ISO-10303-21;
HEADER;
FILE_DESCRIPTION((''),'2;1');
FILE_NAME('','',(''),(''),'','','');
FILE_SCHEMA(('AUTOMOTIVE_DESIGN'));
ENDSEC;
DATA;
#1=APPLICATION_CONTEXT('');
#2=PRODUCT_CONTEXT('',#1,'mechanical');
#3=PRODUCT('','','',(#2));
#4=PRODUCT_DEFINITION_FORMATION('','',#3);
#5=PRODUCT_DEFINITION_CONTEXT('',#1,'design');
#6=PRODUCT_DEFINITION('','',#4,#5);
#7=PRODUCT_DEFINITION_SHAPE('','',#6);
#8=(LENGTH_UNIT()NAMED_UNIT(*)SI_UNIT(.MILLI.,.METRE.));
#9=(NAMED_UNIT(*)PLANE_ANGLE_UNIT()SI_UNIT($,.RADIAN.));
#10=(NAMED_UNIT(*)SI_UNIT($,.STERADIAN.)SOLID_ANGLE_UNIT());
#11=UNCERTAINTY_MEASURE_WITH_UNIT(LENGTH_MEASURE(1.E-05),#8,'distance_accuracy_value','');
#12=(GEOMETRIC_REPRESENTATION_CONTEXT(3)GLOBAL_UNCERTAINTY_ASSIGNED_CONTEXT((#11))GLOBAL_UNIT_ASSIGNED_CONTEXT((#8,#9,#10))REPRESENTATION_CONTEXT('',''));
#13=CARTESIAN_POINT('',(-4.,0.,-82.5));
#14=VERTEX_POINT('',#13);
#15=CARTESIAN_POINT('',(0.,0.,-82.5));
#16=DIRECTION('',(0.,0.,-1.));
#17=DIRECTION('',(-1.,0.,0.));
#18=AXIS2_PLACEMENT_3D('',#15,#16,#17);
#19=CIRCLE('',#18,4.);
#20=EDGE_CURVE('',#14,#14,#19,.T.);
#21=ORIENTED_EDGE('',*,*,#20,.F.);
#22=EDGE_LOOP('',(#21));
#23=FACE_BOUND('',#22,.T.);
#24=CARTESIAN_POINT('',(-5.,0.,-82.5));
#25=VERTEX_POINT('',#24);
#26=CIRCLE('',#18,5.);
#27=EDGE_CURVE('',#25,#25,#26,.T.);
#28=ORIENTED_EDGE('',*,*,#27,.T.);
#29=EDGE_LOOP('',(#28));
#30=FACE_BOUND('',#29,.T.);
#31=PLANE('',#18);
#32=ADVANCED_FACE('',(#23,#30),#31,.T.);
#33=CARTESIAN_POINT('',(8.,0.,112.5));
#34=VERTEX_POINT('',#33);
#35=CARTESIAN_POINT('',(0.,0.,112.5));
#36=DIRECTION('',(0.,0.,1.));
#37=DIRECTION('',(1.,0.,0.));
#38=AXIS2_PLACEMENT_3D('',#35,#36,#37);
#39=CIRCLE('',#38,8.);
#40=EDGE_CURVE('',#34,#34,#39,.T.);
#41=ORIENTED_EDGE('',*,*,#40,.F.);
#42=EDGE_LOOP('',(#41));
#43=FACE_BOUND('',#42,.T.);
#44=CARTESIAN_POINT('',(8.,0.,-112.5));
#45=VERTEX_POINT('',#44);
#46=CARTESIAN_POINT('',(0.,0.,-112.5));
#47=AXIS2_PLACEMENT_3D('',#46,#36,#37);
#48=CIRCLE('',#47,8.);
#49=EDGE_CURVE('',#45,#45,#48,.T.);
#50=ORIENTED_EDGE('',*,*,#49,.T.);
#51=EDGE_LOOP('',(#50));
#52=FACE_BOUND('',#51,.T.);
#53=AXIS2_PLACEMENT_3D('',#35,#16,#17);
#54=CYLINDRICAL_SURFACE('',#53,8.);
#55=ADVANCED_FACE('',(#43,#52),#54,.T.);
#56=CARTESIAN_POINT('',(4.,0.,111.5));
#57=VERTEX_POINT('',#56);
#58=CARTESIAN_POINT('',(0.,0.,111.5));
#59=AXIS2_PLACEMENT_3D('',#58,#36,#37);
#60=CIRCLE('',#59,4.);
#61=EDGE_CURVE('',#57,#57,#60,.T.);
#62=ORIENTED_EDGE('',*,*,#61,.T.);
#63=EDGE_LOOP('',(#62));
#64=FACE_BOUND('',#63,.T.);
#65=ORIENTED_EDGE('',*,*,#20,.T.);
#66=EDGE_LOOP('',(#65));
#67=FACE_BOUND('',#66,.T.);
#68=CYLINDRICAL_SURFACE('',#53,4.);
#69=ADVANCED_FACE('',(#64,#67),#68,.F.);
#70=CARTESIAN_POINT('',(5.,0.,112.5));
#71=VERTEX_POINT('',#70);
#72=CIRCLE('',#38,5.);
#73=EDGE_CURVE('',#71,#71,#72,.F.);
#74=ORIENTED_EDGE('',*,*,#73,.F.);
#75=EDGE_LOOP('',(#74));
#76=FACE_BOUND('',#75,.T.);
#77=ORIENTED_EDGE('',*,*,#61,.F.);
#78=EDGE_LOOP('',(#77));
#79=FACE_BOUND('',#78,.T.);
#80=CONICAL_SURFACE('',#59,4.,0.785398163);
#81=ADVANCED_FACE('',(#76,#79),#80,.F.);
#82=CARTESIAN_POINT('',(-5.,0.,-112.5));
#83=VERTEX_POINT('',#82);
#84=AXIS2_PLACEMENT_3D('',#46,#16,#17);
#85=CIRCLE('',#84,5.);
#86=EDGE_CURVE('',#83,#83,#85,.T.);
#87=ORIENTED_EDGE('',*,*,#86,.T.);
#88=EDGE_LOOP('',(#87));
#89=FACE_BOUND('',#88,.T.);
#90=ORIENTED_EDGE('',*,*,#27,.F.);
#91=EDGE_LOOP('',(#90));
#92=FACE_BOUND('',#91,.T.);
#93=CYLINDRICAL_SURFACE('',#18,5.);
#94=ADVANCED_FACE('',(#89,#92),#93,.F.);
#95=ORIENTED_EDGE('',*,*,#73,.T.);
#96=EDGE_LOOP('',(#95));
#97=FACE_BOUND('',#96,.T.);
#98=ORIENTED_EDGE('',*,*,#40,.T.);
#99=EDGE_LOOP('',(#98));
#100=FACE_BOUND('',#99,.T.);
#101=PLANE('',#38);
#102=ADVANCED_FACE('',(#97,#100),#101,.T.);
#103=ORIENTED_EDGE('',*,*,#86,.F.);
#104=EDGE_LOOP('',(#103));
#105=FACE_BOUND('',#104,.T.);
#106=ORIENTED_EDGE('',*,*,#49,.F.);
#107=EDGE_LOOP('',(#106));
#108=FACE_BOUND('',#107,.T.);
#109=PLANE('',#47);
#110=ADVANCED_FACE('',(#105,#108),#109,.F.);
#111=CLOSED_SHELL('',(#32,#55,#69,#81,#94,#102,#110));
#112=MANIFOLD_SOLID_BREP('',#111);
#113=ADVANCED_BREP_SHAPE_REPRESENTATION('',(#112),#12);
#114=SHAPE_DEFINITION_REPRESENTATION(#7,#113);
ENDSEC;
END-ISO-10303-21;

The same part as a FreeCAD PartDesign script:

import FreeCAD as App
import Part
import Sketcher
from FreeCAD import Vector
Q = App.Units.Quantity


def edges_at(feature, points):
    """Names of the edges that pass closest to the given points."""
    edges = feature.Shape.Edges
    near = lambda p: min(range(len(edges)), key=lambda i: edges[i].distToShape(Part.Vertex(*p))[0])
    return sorted({f"Edge{near(p) + 1}" for p in points})

doc = App.newDocument("Part")
params = doc.addObject("Spreadsheet::Sheet", "Params")
for row, (alias, value) in enumerate([
    ("sketch1_diameter", "16 mm"),
    ("sketch1_diameter2", "8 mm"),
    ("pad1_length", "225 mm"),
    ("sketch2_diameter", "10 mm"),
    ("pocket1_length", "30 mm"),
    ("chamfer_size", "1 mm"),
], start=1):
    params.set(f"A{row}", alias)
    params.set(f"B{row}", "=" + value)
    params.setAlias(f"B{row}", alias)

body = doc.addObject("PartDesign::Body", "Body")

# Sketch on XY plane
sketch1 = body.newObject("Sketcher::SketchObject", "Sketch")
sketch1.AttachmentSupport = (doc.getObject("XY_Plane"), [""])
sketch1.MapMode = "FlatFace"
sketch1.addGeometry([
    Part.Circle(Vector(0, 0, 0), Vector(0, 0, 1), 8),
    Part.Circle(Vector(0, 0, 0), Vector(0, 0, 1), 4),
], False)
sketch1.addConstraint([
    Sketcher.Constraint("Coincident", 0, 3, -1, 1),
    Sketcher.Constraint("Coincident", 1, 3, -1, 1),
    Sketcher.Constraint("Diameter", 0, Q("16 mm")),
    Sketcher.Constraint("Diameter", 1, Q("8 mm")),
])
sketch1.setExpression("Constraints[2]", "Params.sketch1_diameter")
sketch1.setExpression("Constraints[3]", "Params.sketch1_diameter2")
pad1 = body.newObject("PartDesign::Pad", "Pad")
pad1.Profile = sketch1
pad1.setExpression("Length", "Params.pad1_length")
pad1.Midplane = True

# Sketch on XY plane
sketch2 = body.newObject("Sketcher::SketchObject", "Sketch001")
sketch2.AttachmentSupport = (doc.getObject("XY_Plane"), [""])
sketch2.MapMode = "FlatFace"
sketch2.AttachmentOffset = App.Placement(Vector(0, 0, -112.5), App.Rotation())
sketch2.addGeometry(Part.Circle(Vector(0, 0, 0), Vector(0, 0, 1), 5), False)
sketch2.addConstraint([
    Sketcher.Constraint("Coincident", 0, 3, -1, 1),
    Sketcher.Constraint("Diameter", 0, Q("10 mm")),
])
sketch2.setExpression("Constraints[1]", "Params.sketch2_diameter")
pocket1 = body.newObject("PartDesign::Pocket", "Pocket")
pocket1.Profile = sketch2
pocket1.setExpression("Length", "Params.pocket1_length")
pocket1.Reversed = True
doc.recompute()

chamfer = body.newObject("PartDesign::Chamfer", "Chamfer")
chamfer.Base = (pocket1, edges_at(pocket1, [(-4, 0, 112.5)]))
chamfer.setExpression("Size", "Params.chamfer_size")

doc.recompute()
